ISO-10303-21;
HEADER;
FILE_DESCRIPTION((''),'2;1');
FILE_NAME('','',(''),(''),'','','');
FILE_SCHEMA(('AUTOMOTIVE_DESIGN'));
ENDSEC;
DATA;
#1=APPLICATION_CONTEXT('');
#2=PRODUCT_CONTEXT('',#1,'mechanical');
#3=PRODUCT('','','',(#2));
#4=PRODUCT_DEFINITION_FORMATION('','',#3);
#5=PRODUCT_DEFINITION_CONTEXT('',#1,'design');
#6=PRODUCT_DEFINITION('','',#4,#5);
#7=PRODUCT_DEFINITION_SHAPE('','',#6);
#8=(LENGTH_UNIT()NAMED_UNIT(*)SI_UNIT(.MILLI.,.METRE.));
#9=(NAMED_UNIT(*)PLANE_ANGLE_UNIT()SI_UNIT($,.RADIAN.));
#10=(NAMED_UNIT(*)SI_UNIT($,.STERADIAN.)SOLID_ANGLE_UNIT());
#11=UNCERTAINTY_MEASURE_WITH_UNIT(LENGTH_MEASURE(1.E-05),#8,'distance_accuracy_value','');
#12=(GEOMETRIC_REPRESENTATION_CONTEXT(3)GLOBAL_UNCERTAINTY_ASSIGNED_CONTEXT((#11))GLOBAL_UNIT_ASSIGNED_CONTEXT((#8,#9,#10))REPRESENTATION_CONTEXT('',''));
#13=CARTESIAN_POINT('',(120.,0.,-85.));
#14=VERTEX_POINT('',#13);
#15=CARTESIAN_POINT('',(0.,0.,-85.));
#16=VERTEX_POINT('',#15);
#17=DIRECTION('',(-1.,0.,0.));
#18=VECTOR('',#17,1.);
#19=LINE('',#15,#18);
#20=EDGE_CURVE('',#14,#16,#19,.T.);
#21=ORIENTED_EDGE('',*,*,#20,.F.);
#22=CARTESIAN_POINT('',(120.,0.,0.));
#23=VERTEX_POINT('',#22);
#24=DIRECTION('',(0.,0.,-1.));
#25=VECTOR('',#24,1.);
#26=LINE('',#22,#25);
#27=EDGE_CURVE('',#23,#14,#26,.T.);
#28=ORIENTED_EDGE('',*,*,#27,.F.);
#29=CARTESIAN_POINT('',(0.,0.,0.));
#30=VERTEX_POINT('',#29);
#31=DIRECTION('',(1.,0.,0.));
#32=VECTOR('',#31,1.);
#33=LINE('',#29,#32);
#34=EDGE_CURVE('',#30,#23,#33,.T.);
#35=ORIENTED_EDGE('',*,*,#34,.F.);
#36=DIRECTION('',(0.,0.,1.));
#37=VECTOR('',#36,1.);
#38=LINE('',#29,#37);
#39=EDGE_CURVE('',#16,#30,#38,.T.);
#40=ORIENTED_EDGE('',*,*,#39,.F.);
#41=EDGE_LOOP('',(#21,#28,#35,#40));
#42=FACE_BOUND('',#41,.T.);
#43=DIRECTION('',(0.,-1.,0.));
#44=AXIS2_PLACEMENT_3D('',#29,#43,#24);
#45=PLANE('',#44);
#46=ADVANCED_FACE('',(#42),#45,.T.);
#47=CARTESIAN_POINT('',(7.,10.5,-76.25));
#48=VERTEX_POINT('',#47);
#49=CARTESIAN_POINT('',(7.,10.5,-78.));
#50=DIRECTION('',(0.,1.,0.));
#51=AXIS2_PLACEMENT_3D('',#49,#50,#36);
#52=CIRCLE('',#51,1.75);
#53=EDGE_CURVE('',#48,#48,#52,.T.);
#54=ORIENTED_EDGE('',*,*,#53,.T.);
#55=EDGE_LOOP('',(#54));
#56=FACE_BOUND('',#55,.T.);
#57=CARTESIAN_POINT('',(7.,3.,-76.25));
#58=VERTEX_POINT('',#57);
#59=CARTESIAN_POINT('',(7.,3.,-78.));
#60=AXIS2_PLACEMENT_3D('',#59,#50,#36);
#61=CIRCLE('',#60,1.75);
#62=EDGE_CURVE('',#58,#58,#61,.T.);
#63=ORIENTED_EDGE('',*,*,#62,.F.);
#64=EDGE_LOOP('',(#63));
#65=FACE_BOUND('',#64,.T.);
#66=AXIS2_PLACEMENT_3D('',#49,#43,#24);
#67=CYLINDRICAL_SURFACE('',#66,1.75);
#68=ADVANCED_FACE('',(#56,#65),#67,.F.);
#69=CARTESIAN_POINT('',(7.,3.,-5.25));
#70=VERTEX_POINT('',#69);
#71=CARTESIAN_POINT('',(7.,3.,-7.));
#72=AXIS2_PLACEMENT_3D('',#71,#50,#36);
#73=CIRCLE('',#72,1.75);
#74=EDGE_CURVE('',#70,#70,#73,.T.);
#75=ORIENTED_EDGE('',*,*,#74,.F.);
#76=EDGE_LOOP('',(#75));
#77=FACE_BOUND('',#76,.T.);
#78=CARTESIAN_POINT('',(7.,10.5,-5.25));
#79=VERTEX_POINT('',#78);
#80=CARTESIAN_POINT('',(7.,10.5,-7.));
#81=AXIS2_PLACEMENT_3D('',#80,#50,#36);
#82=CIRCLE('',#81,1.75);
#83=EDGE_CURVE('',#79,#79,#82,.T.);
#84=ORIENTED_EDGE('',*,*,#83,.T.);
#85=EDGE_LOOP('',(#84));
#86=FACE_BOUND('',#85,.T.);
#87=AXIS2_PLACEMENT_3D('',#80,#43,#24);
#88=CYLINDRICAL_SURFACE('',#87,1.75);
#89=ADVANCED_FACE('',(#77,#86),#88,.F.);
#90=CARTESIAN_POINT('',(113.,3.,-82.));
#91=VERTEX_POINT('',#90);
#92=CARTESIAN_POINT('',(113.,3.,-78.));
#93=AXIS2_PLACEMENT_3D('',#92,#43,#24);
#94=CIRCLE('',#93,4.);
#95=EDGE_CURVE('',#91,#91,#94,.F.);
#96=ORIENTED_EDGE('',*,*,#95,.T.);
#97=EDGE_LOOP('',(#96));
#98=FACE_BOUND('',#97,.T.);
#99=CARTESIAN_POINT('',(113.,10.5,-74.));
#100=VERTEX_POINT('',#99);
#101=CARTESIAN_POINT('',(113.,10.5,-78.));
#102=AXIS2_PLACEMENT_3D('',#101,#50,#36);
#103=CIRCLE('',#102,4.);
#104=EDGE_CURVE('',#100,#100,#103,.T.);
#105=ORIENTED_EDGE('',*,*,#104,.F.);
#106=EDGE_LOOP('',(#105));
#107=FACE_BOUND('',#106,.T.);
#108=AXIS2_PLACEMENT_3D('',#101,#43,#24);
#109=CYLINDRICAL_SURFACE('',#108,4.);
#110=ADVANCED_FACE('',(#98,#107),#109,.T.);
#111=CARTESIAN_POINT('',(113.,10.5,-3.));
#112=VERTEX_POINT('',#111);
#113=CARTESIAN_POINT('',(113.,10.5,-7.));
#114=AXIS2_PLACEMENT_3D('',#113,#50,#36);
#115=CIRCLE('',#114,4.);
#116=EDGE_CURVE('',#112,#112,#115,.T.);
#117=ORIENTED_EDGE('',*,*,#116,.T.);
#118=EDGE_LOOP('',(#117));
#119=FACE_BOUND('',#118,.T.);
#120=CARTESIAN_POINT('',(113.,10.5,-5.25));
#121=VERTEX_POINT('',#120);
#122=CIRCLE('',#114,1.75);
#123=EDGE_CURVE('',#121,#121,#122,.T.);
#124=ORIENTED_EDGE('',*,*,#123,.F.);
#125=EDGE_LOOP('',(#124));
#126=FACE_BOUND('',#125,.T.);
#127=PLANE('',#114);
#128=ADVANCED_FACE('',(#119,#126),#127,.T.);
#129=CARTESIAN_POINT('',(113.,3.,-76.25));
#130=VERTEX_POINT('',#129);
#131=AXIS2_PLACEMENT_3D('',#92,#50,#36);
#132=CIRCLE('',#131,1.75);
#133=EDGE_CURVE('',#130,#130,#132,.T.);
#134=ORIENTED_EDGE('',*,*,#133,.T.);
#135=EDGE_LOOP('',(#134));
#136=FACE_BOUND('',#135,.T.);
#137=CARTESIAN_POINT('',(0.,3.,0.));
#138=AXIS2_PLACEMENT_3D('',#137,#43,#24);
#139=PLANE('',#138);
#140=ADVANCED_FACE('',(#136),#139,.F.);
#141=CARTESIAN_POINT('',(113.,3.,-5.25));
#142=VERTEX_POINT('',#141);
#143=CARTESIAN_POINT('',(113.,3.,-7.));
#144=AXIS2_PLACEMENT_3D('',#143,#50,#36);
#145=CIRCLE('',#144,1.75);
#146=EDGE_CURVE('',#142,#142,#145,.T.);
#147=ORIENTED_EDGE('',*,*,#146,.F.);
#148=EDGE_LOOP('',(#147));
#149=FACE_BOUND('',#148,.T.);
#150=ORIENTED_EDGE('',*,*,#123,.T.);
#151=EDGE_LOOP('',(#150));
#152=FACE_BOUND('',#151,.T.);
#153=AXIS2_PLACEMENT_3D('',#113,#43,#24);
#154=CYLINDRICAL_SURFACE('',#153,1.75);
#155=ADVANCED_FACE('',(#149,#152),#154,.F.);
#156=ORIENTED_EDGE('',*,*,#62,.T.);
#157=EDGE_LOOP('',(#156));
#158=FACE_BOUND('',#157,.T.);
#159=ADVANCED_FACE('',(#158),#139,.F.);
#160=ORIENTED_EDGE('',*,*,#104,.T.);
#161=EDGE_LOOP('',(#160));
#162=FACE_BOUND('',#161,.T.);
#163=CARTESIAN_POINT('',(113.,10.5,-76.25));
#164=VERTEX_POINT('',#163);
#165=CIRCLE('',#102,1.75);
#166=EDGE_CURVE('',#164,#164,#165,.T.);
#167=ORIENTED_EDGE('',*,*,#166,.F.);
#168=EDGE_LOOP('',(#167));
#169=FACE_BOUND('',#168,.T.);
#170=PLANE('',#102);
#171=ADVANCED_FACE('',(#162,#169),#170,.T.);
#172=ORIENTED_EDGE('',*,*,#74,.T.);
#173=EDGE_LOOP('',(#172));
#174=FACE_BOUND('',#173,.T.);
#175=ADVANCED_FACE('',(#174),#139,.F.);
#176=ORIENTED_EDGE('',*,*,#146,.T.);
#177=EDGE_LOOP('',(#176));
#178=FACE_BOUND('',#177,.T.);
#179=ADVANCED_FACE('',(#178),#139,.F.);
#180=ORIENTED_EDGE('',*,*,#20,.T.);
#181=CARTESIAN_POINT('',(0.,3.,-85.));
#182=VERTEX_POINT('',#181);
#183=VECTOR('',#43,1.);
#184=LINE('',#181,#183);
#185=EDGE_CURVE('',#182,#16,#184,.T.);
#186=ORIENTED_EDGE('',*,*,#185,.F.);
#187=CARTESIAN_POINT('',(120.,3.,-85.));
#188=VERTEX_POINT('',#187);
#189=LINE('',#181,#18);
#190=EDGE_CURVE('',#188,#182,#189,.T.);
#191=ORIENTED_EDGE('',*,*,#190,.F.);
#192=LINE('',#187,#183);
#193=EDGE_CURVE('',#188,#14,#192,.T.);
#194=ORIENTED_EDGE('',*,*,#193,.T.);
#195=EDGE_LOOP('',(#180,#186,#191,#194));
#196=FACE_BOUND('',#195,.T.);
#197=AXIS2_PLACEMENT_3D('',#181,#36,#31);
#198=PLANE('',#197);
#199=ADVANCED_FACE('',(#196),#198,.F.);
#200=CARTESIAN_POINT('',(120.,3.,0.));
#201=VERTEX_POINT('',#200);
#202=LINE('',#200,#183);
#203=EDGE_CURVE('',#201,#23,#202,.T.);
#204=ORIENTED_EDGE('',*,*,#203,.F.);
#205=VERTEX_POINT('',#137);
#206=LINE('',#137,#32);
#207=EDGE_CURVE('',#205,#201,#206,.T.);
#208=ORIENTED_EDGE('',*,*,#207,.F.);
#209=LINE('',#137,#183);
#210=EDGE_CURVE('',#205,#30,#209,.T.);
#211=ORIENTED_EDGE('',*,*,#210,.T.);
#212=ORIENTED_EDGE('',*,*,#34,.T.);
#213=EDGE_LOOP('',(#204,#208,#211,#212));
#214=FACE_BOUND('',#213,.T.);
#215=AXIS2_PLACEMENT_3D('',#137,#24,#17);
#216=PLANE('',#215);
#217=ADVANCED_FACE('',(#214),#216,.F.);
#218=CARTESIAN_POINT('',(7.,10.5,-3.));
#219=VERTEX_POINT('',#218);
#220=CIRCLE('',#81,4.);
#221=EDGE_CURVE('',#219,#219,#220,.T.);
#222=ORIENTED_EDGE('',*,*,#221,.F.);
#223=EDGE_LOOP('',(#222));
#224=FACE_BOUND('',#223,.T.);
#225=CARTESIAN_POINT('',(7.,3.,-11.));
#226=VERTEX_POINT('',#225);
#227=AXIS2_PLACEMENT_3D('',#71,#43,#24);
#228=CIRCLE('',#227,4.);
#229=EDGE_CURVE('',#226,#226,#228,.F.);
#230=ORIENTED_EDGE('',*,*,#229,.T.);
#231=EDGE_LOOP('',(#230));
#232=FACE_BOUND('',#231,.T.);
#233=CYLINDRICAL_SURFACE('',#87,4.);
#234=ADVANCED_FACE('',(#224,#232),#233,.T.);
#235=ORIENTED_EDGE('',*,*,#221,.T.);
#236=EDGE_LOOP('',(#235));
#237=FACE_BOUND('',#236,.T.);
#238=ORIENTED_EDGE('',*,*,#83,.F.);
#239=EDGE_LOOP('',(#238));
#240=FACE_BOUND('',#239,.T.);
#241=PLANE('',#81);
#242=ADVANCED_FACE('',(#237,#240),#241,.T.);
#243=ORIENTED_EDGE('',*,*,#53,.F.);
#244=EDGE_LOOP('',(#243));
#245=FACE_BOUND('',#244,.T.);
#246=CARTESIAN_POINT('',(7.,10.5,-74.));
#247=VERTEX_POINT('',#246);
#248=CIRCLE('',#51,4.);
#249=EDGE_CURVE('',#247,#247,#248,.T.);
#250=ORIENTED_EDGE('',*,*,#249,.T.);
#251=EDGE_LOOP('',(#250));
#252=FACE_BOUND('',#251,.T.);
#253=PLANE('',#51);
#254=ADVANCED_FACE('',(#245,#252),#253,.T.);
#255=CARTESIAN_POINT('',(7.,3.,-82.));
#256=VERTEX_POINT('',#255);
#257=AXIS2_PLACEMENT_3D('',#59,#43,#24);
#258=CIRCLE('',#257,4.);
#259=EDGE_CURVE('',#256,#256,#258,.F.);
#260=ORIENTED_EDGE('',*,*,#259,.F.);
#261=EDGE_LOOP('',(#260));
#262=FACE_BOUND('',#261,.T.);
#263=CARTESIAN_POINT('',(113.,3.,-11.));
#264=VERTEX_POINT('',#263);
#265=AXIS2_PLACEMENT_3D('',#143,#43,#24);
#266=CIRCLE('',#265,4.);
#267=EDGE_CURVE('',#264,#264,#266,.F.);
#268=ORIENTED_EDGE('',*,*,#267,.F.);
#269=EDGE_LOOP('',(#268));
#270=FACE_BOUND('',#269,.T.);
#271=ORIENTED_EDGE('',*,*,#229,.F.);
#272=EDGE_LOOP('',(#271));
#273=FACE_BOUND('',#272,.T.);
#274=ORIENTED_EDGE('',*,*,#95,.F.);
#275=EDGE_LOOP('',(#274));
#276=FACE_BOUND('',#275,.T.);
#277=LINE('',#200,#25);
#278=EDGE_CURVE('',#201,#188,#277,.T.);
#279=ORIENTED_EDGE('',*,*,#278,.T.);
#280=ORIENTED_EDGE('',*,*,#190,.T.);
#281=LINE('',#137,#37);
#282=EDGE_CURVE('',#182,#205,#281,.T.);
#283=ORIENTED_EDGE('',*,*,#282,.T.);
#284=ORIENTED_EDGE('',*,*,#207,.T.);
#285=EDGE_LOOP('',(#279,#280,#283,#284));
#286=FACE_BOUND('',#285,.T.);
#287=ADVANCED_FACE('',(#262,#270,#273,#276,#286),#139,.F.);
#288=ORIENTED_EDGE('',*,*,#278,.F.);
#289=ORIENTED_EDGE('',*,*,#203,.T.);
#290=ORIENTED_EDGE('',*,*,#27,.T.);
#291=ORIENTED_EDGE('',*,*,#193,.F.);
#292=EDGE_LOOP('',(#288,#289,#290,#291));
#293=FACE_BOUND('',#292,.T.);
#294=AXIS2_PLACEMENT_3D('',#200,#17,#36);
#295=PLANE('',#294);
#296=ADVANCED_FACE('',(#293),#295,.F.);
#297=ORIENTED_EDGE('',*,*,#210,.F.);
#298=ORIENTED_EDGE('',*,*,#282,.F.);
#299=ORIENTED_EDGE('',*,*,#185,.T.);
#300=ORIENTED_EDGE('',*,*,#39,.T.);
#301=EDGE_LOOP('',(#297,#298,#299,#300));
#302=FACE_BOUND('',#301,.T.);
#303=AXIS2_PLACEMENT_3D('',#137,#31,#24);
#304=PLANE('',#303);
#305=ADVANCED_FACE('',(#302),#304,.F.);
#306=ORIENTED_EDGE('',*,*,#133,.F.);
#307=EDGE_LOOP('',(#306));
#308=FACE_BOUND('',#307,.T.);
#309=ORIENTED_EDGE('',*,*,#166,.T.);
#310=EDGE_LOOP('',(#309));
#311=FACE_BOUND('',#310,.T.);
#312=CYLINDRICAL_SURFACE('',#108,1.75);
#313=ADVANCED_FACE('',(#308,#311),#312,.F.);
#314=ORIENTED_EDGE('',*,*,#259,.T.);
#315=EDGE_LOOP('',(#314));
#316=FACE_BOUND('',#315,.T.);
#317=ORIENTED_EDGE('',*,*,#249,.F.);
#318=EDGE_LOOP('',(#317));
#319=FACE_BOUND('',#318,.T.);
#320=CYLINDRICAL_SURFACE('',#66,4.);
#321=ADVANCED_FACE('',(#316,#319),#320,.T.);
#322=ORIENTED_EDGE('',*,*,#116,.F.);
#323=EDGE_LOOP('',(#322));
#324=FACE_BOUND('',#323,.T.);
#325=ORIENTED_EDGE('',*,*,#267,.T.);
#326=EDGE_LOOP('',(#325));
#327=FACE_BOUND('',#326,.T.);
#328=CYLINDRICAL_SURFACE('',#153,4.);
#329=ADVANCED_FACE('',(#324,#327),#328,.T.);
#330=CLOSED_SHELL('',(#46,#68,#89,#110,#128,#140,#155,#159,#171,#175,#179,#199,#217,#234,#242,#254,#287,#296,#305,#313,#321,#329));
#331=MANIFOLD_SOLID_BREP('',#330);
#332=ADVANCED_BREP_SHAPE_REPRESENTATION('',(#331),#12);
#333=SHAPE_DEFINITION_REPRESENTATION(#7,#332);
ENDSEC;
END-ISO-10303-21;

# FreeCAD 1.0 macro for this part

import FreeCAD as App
import Part
import Sketcher

V = App.Vector
Q = App.Units.Quantity

doc = App.newDocument("Part")
body = doc.addObject("PartDesign::Body", "Body")

# Sketch on XZ plane
sketch1 = body.newObject("Sketcher::SketchObject", "Sketch")
sketch1.AttachmentSupport = (doc.getObject("XZ_Plane"), [""])
sketch1.MapMode = "FlatFace"
sketch1.addGeometry(Part.LineSegment(V(0, -85, 0), V(0, 0, 0)), False)
sketch1.addGeometry(Part.LineSegment(V(0, 0, 0), V(120, 0, 0)), False)
sketch1.addGeometry(Part.LineSegment(V(120, 0, 0), V(120, -85, 0)), False)
sketch1.addGeometry(Part.LineSegment(V(120, -85, 0), V(0, -85, 0)), False)
sketch1.addConstraint(Sketcher.Constraint("Coincident", 0, 2, 1, 1))
sketch1.addConstraint(Sketcher.Constraint("Coincident", 1, 2, 2, 1))
sketch1.addConstraint(Sketcher.Constraint("Coincident", 2, 2, 3, 1))
sketch1.addConstraint(Sketcher.Constraint("Coincident", 3, 2, 0, 1))
sketch1.addConstraint(Sketcher.Constraint("Vertical", 0))
sketch1.addConstraint(Sketcher.Constraint("Horizontal", 1))
sketch1.addConstraint(Sketcher.Constraint("Vertical", 2))
sketch1.addConstraint(Sketcher.Constraint("Horizontal", 3))
sketch1.addConstraint(Sketcher.Constraint("Coincident", 0, 2, -1, 1))
sketch1.addConstraint(Sketcher.Constraint("DistanceX", 1, 1, 1, 2, Q("120 mm")))
sketch1.addConstraint(Sketcher.Constraint("DistanceY", 0, 1, 0, 2, Q("85 mm")))
pad1 = body.newObject("PartDesign::Pad", "Pad")
pad1.Profile = sketch1
pad1.Length = 3
pad1.Reversed = True

# Sketch on XZ plane
sketch2 = body.newObject("Sketcher::SketchObject", "Sketch001")
sketch2.AttachmentSupport = (doc.getObject("XZ_Plane"), [""])
sketch2.MapMode = "FlatFace"
sketch2.AttachmentOffset = App.Placement(V(0, 0, -3), App.Rotation())
sketch2.addGeometry(Part.Circle(V(7, -78, 0), V(0, 0, 1), 4), False)
sketch2.addGeometry(Part.Circle(V(7, -78, 0), V(0, 0, 1), 1.75), False)
sketch2.addGeometry(Part.Circle(V(7, -7, 0), V(0, 0, 1), 4), False)
sketch2.addGeometry(Part.Circle(V(7, -7, 0), V(0, 0, 1), 1.75), False)
sketch2.addGeometry(Part.Circle(V(113, -7, 0), V(0, 0, 1), 4), False)
sketch2.addGeometry(Part.Circle(V(113, -7, 0), V(0, 0, 1), 1.75), False)
sketch2.addGeometry(Part.Circle(V(113, -78, 0), V(0, 0, 1), 4), False)
sketch2.addGeometry(Part.Circle(V(113, -78, 0), V(0, 0, 1), 1.75), False)
sketch2.addConstraint(Sketcher.Constraint("Coincident", 1, 3, 0, 3))
sketch2.addConstraint(Sketcher.Constraint("Coincident", 3, 3, 2, 3))
sketch2.addConstraint(Sketcher.Constraint("Coincident", 5, 3, 4, 3))
sketch2.addConstraint(Sketcher.Constraint("Coincident", 7, 3, 6, 3))
sketch2.addConstraint(Sketcher.Constraint("Equal", 0, 2))
sketch2.addConstraint(Sketcher.Constraint("Equal", 1, 3))
sketch2.addConstraint(Sketcher.Constraint("Equal", 2, 4))
sketch2.addConstraint(Sketcher.Constraint("Equal", 3, 5))
sketch2.addConstraint(Sketcher.Constraint("Equal", 4, 6))
sketch2.addConstraint(Sketcher.Constraint("Equal", 5, 7))
sketch2.addConstraint(Sketcher.Constraint("Horizontal", 3, 3, 4, 3))
sketch2.addConstraint(Sketcher.Constraint("Horizontal", 1, 3, 6, 3))
sketch2.addConstraint(Sketcher.Constraint("Vertical", 1, 3, 2, 3))
sketch2.addConstraint(Sketcher.Constraint("Vertical", 5, 3, 6, 3))
sketch2.addConstraint(Sketcher.Constraint("Diameter", 0, Q("8 mm")))
sketch2.addConstraint(Sketcher.Constraint("Diameter", 1, Q("3.5 mm")))
sketch2.addConstraint(Sketcher.Constraint("DistanceX", -1, 1, 0, 3, Q("7 mm")))
sketch2.addConstraint(Sketcher.Constraint("DistanceY", 0, 3, -1, 1, Q("78 mm")))
sketch2.addConstraint(Sketcher.Constraint("DistanceY", 2, 3, -1, 1, Q("7 mm")))
sketch2.addConstraint(Sketcher.Constraint("DistanceX", -1, 1, 4, 3, Q("113 mm")))
pad2 = body.newObject("PartDesign::Pad", "Pad001")
pad2.Profile = sketch2
pad2.Length = 7.5
pad2.Reversed = True

doc.recompute()
